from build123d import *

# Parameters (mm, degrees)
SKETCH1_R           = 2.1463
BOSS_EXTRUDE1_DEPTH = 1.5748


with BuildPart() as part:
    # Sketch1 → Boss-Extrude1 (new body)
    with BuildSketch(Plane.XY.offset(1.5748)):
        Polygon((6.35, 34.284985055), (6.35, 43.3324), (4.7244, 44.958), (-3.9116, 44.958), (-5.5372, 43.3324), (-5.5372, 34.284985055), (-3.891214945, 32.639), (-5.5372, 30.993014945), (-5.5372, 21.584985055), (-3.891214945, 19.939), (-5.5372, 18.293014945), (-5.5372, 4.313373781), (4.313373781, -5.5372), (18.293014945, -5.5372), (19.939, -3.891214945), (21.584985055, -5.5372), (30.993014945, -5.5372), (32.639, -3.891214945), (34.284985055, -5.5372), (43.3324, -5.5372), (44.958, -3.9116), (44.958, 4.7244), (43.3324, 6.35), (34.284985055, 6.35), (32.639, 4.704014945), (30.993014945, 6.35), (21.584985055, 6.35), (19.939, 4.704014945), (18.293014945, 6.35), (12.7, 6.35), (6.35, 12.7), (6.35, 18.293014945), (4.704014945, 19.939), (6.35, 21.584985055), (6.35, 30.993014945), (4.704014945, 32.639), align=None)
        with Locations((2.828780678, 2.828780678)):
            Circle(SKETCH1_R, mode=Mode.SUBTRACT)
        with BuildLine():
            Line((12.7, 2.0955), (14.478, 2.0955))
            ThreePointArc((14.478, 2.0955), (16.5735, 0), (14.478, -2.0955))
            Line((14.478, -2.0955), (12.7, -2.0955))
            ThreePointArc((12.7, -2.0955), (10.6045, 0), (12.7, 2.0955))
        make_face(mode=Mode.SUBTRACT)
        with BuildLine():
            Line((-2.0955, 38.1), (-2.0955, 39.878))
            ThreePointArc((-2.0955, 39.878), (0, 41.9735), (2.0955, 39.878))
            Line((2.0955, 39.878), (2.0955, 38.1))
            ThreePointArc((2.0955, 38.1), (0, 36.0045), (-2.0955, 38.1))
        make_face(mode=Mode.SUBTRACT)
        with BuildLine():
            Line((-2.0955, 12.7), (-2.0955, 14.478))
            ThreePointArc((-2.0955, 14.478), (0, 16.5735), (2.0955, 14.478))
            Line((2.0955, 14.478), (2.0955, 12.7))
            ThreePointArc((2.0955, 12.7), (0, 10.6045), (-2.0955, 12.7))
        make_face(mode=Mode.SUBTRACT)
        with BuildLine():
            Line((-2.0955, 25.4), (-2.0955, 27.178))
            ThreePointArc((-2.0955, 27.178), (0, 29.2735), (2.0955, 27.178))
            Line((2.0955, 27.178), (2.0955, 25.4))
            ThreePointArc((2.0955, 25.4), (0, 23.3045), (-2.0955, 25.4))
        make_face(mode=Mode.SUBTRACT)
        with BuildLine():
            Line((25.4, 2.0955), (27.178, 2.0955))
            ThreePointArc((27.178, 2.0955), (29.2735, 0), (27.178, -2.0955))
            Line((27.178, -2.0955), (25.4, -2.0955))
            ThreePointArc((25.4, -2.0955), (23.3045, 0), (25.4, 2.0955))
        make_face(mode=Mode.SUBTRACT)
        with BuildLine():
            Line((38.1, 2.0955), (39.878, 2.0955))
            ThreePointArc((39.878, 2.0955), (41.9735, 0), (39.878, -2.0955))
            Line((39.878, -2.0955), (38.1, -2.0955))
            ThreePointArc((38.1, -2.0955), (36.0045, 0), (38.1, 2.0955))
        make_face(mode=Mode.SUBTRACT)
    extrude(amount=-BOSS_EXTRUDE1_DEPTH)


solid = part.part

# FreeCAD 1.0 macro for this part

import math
import FreeCAD as App
import Part
import Sketcher
Q = App.Units.Quantity

doc = App.newDocument("Part")
params = doc.addObject("Spreadsheet::Sheet", "Params")
for row, (alias, value) in enumerate([
    ("sketch1_diameter", "0.169 in"),
    ("sketch1_width", "0.34 in"),
    ("sketch1_width2", "0.07 in"),
    ("pad1_length", "0.062 in"),
], start=1):
    params.set(f"A{row}", alias)
    params.set(f"B{row}", "=" + value)
    params.setAlias(f"B{row}", alias)

body = doc.addObject("PartDesign::Body", "Body")

# Sketch on XY plane
sketch1 = body.newObject("Sketcher::SketchObject", "Sketch")
sketch1.AttachmentSupport = (doc.getObject("XY_Plane"), [""])
sketch1.MapMode = "FlatFace"
sketch1.AttachmentOffset = App.Placement(App.Vector(0, 0, 0.062 * 25.4), App.Rotation())
sketch1.addGeometry([
    Part.LineSegment(App.Vector(6.3, 34.3, 0), App.Vector(6.3, 43.3, 0)),  # 0
    Part.LineSegment(App.Vector(6.3, 43.3, 0), App.Vector(4.7, 45, 0)),  # 1
    Part.LineSegment(App.Vector(4.7, 45, 0), App.Vector(-3.9, 45, 0)),  # 2
    Part.LineSegment(App.Vector(-3.9, 45, 0), App.Vector(-5.5, 43.3, 0)),  # 3
    Part.LineSegment(App.Vector(-5.5, 43.3, 0), App.Vector(-5.5, 34.3, 0)),  # 4
    Part.LineSegment(App.Vector(-5.5, 34.3, 0), App.Vector(-3.9, 32.6, 0)),  # 5
    Part.LineSegment(App.Vector(-3.9, 32.6, 0), App.Vector(-5.5, 31, 0)),  # 6
    Part.LineSegment(App.Vector(-5.5, 31, 0), App.Vector(-5.5, 21.6, 0)),  # 7
    Part.LineSegment(App.Vector(-5.5, 21.6, 0), App.Vector(-3.9, 19.9, 0)),  # 8
    Part.LineSegment(App.Vector(-3.9, 19.9, 0), App.Vector(-5.5, 18.3, 0)),  # 9
    Part.LineSegment(App.Vector(-5.5, 18.3, 0), App.Vector(-5.5, 4.3, 0)),  # 10
    Part.LineSegment(App.Vector(-5.5, 4.3, 0), App.Vector(4.3, -5.5, 0)),  # 11
    Part.LineSegment(App.Vector(4.3, -5.5, 0), App.Vector(18.3, -5.5, 0)),  # 12
    Part.LineSegment(App.Vector(18.3, -5.5, 0), App.Vector(19.9, -3.9, 0)),  # 13
    Part.LineSegment(App.Vector(19.9, -3.9, 0), App.Vector(21.6, -5.5, 0)),  # 14
    Part.LineSegment(App.Vector(21.6, -5.5, 0), App.Vector(31, -5.5, 0)),  # 15
    Part.LineSegment(App.Vector(31, -5.5, 0), App.Vector(32.6, -3.9, 0)),  # 16
    Part.LineSegment(App.Vector(32.6, -3.9, 0), App.Vector(34.3, -5.5, 0)),  # 17
    Part.LineSegment(App.Vector(34.3, -5.5, 0), App.Vector(43.3, -5.5, 0)),  # 18
    Part.LineSegment(App.Vector(43.3, -5.5, 0), App.Vector(45, -3.9, 0)),  # 19
    Part.LineSegment(App.Vector(45, -3.9, 0), App.Vector(45, 4.7, 0)),  # 20
    Part.LineSegment(App.Vector(45, 4.7, 0), App.Vector(43.3, 6.3, 0)),  # 21
    Part.LineSegment(App.Vector(43.3, 6.3, 0), App.Vector(34.3, 6.3, 0)),  # 22
    Part.LineSegment(App.Vector(34.3, 6.3, 0), App.Vector(32.6, 4.7, 0)),  # 23
    Part.LineSegment(App.Vector(32.6, 4.7, 0), App.Vector(31, 6.3, 0)),  # 24
    Part.LineSegment(App.Vector(31, 6.3, 0), App.Vector(21.6, 6.3, 0)),  # 25
    Part.LineSegment(App.Vector(21.6, 6.3, 0), App.Vector(19.9, 4.7, 0)),  # 26
    Part.LineSegment(App.Vector(19.9, 4.7, 0), App.Vector(18.3, 6.3, 0)),  # 27
    Part.LineSegment(App.Vector(18.3, 6.3, 0), App.Vector(12.7, 6.3, 0)),  # 28
    Part.LineSegment(App.Vector(12.7, 6.3, 0), App.Vector(6.3, 12.7, 0)),  # 29
    Part.LineSegment(App.Vector(6.3, 12.7, 0), App.Vector(6.3, 18.3, 0)),  # 30
    Part.LineSegment(App.Vector(6.3, 18.3, 0), App.Vector(4.7, 19.9, 0)),  # 31
    Part.LineSegment(App.Vector(4.7, 19.9, 0), App.Vector(6.3, 21.6, 0)),  # 32
    Part.LineSegment(App.Vector(6.3, 21.6, 0), App.Vector(6.3, 31, 0)),  # 33
    Part.LineSegment(App.Vector(6.3, 31, 0), App.Vector(4.7, 32.6, 0)),  # 34
    Part.LineSegment(App.Vector(4.7, 32.6, 0), App.Vector(6.3, 34.3, 0)),  # 35
    Part.Circle(App.Vector(2.8, 2.8, 0), App.Vector(0, 0, 1), 2.1),  # 36
    Part.ArcOfCircle(Part.Circle(App.Vector(12.7, 0, 0), App.Vector(0, 0, 1), 2.1), math.radians(90), math.radians(270)),  # 37
    Part.LineSegment(App.Vector(12.7, 2.1, 0), App.Vector(14.5, 2.1, 0)),  # 38
    Part.ArcOfCircle(Part.Circle(App.Vector(14.5, 0, 0), App.Vector(0, 0, 1), 2.1), math.radians(-90), math.radians(90)),  # 39
    Part.LineSegment(App.Vector(14.5, -2.1, 0), App.Vector(12.7, -2.1, 0)),  # 40
    Part.ArcOfCircle(Part.Circle(App.Vector(0, 12.7, 0), App.Vector(0, 0, 1), 2.1), math.radians(180), math.radians(360)),  # 41
    Part.LineSegment(App.Vector(-2.1, 12.7, 0), App.Vector(-2.1, 14.5, 0)),  # 42
    Part.ArcOfCircle(Part.Circle(App.Vector(0, 14.5, 0), App.Vector(0, 0, 1), 2.1), math.radians(0), math.radians(180)),  # 43
    Part.LineSegment(App.Vector(2.1, 14.5, 0), App.Vector(2.1, 12.7, 0)),  # 44
    Part.ArcOfCircle(Part.Circle(App.Vector(25.4, 0, 0), App.Vector(0, 0, 1), 2.1), math.radians(90), math.radians(270)),  # 45
    Part.LineSegment(App.Vector(25.4, 2.1, 0), App.Vector(27.2, 2.1, 0)),  # 46
    Part.ArcOfCircle(Part.Circle(App.Vector(27.2, 0, 0), App.Vector(0, 0, 1), 2.1), math.radians(-90), math.radians(90)),  # 47
    Part.LineSegment(App.Vector(27.2, -2.1, 0), App.Vector(25.4, -2.1, 0)),  # 48
    Part.ArcOfCircle(Part.Circle(App.Vector(38.1, 0, 0), App.Vector(0, 0, 1), 2.1), math.radians(90), math.radians(270)),  # 49
    Part.LineSegment(App.Vector(38.1, 2.1, 0), App.Vector(39.9, 2.1, 0)),  # 50
    Part.ArcOfCircle(Part.Circle(App.Vector(39.9, 0, 0), App.Vector(0, 0, 1), 2.1), math.radians(-90), math.radians(90)),  # 51
    Part.LineSegment(App.Vector(39.9, -2.1, 0), App.Vector(38.1, -2.1, 0)),  # 52
    Part.ArcOfCircle(Part.Circle(App.Vector(0, 25.4, 0), App.Vector(0, 0, 1), 2.1), math.radians(180), math.radians(360)),  # 53
    Part.LineSegment(App.Vector(-2.1, 25.4, 0), App.Vector(-2.1, 27.2, 0)),  # 54
    Part.ArcOfCircle(Part.Circle(App.Vector(0, 27.2, 0), App.Vector(0, 0, 1), 2.1), math.radians(0), math.radians(180)),  # 55
    Part.LineSegment(App.Vector(2.1, 27.2, 0), App.Vector(2.1, 25.4, 0)),  # 56
    Part.ArcOfCircle(Part.Circle(App.Vector(0, 38.1, 0), App.Vector(0, 0, 1), 2.1), math.radians(180), math.radians(360)),  # 57
    Part.LineSegment(App.Vector(-2.1, 38.1, 0), App.Vector(-2.1, 39.9, 0)),  # 58
    Part.ArcOfCircle(Part.Circle(App.Vector(0, 39.9, 0), App.Vector(0, 0, 1), 2.1), math.radians(0), math.radians(180)),  # 59
    Part.LineSegment(App.Vector(2.1, 39.9, 0), App.Vector(2.1, 38.1, 0)),  # 60
], False)
sketch1.addConstraint([
    Sketcher.Constraint("Coincident", 0, 2, 1, 1),
    Sketcher.Constraint("Coincident", 1, 2, 2, 1),
    Sketcher.Constraint("Coincident", 2, 2, 3, 1),
    Sketcher.Constraint("Coincident", 3, 2, 4, 1),
    Sketcher.Constraint("Coincident", 4, 2, 5, 1),
    Sketcher.Constraint("Coincident", 5, 2, 6, 1),
    Sketcher.Constraint("Coincident", 6, 2, 7, 1),
    Sketcher.Constraint("Coincident", 7, 2, 8, 1),
    Sketcher.Constraint("Coincident", 8, 2, 9, 1),
    Sketcher.Constraint("Coincident", 9, 2, 10, 1),
    Sketcher.Constraint("Coincident", 10, 2, 11, 1),
    Sketcher.Constraint("Coincident", 11, 2, 12, 1),
    Sketcher.Constraint("Coincident", 12, 2, 13, 1),
    Sketcher.Constraint("Coincident", 13, 2, 14, 1),
    Sketcher.Constraint("Coincident", 14, 2, 15, 1),
    Sketcher.Constraint("Coincident", 15, 2, 16, 1),
    Sketcher.Constraint("Coincident", 16, 2, 17, 1),
    Sketcher.Constraint("Coincident", 17, 2, 18, 1),
    Sketcher.Constraint("Coincident", 18, 2, 19, 1),
    Sketcher.Constraint("Coincident", 19, 2, 20, 1),
    Sketcher.Constraint("Coincident", 20, 2, 21, 1),
    Sketcher.Constraint("Coincident", 21, 2, 22, 1),
    Sketcher.Constraint("Coincident", 22, 2, 23, 1),
    Sketcher.Constraint("Coincident", 23, 2, 24, 1),
    Sketcher.Constraint("Coincident", 24, 2, 25, 1),
    Sketcher.Constraint("Coincident", 25, 2, 26, 1),
    Sketcher.Constraint("Coincident", 26, 2, 27, 1),
    Sketcher.Constraint("Coincident", 27, 2, 28, 1),
    Sketcher.Constraint("Coincident", 28, 2, 29, 1),
    Sketcher.Constraint("Coincident", 29, 2, 30, 1),
    Sketcher.Constraint("Coincident", 30, 2, 31, 1),
    Sketcher.Constraint("Coincident", 31, 2, 32, 1),
    Sketcher.Constraint("Coincident", 32, 2, 33, 1),
    Sketcher.Constraint("Coincident", 33, 2, 34, 1),
    Sketcher.Constraint("Coincident", 34, 2, 35, 1),
    Sketcher.Constraint("Coincident", 35, 2, 0, 1),
    Sketcher.Constraint("Tangent", 37, 1, 38, 1),
    Sketcher.Constraint("Tangent", 38, 2, 39, 2),
    Sketcher.Constraint("Tangent", 39, 1, 40, 1),
    Sketcher.Constraint("Tangent", 40, 2, 37, 2),
    Sketcher.Constraint("Tangent", 41, 1, 42, 1),
    Sketcher.Constraint("Tangent", 42, 2, 43, 2),
    Sketcher.Constraint("Tangent", 43, 1, 44, 1),
    Sketcher.Constraint("Tangent", 44, 2, 41, 2),
    Sketcher.Constraint("Tangent", 45, 1, 46, 1),
    Sketcher.Constraint("Tangent", 46, 2, 47, 2),
    Sketcher.Constraint("Tangent", 47, 1, 48, 1),
    Sketcher.Constraint("Tangent", 48, 2, 45, 2),
    Sketcher.Constraint("Tangent", 49, 1, 50, 1),
    Sketcher.Constraint("Tangent", 50, 2, 51, 2),
    Sketcher.Constraint("Tangent", 51, 1, 52, 1),
    Sketcher.Constraint("Tangent", 52, 2, 49, 2),
    Sketcher.Constraint("Tangent", 53, 1, 54, 1),
    Sketcher.Constraint("Tangent", 54, 2, 55, 2),
    Sketcher.Constraint("Tangent", 55, 1, 56, 1),
    Sketcher.Constraint("Tangent", 56, 2, 53, 2),
    Sketcher.Constraint("Tangent", 57, 1, 58, 1),
    Sketcher.Constraint("Tangent", 58, 2, 59, 2),
    Sketcher.Constraint("Tangent", 59, 1, 60, 1),
    Sketcher.Constraint("Tangent", 60, 2, 57, 2),
    Sketcher.Constraint("Vertical", 0),
    Sketcher.Constraint("Horizontal", 2),
    Sketcher.Constraint("Vertical", 4),
    Sketcher.Constraint("Vertical", 7),
    Sketcher.Constraint("Vertical", 10),
    Sketcher.Constraint("Horizontal", 12),
    Sketcher.Constraint("Horizontal", 15),
    Sketcher.Constraint("Horizontal", 18),
    Sketcher.Constraint("Vertical", 20),
    Sketcher.Constraint("Horizontal", 22),
    Sketcher.Constraint("Horizontal", 25),
    Sketcher.Constraint("Horizontal", 28),
    Sketcher.Constraint("Vertical", 30),
    Sketcher.Constraint("Vertical", 33),
    Sketcher.Constraint("Horizontal", 38),
    Sketcher.Constraint("Horizontal", 40),
    Sketcher.Constraint("Vertical", 42),
    Sketcher.Constraint("Vertical", 44),
    Sketcher.Constraint("Horizontal", 46),
    Sketcher.Constraint("Horizontal", 48),
    Sketcher.Constraint("Horizontal", 50),
    Sketcher.Constraint("Horizontal", 52),
    Sketcher.Constraint("Vertical", 54),
    Sketcher.Constraint("Vertical", 56),
    Sketcher.Constraint("Vertical", 58),
    Sketcher.Constraint("Vertical", 60),
    Sketcher.Constraint("Equal", 39, 41),
    Sketcher.Constraint("Equal", 43, 45),
    Sketcher.Constraint("Equal", 47, 49),
    Sketcher.Constraint("Equal", 51, 53),
    Sketcher.Constraint("Equal", 55, 57),
    Sketcher.Constraint("PointOnObject", 37, 3, -1),
    Sketcher.Constraint("PointOnObject", 41, 3, -2),
    Sketcher.Constraint("PointOnObject", 45, 3, -1),
    Sketcher.Constraint("PointOnObject", 49, 3, -1),
    Sketcher.Constraint("PointOnObject", 53, 3, -2),
    Sketcher.Constraint("PointOnObject", 57, 3, -2),
    Sketcher.Constraint("Perpendicular", 1, 3),
    Sketcher.Constraint("Perpendicular", 3, 5),
    Sketcher.Constraint("Perpendicular", 5, 6),
    Sketcher.Constraint("Perpendicular", 6, 8),
    Sketcher.Constraint("Perpendicular", 8, 9),
    Sketcher.Constraint("Perpendicular", 9, 11),
    Sketcher.Constraint("Perpendicular", 11, 13),
    Sketcher.Constraint("Perpendicular", 13, 14),
    Sketcher.Constraint("Perpendicular", 14, 16),
    Sketcher.Constraint("Perpendicular", 16, 17),
    Sketcher.Constraint("Perpendicular", 17, 19),
    Sketcher.Constraint("Perpendicular", 19, 21),
    Sketcher.Constraint("Perpendicular", 21, 23),
    Sketcher.Constraint("Perpendicular", 23, 24),
    Sketcher.Constraint("Perpendicular", 24, 26),
    Sketcher.Constraint("Perpendicular", 26, 27),
    Sketcher.Constraint("Parallel", 27, 29),
    Sketcher.Constraint("Parallel", 29, 31),
    Sketcher.Constraint("Perpendicular", 31, 32),
    Sketcher.Constraint("Perpendicular", 32, 34),
    Sketcher.Constraint("Perpendicular", 34, 35),
    Sketcher.Constraint("Horizontal", 0, 2, 3, 2),
    Sketcher.Constraint("Horizontal", 12, 2, 14, 2),
    Sketcher.Constraint("Horizontal", 13, 2, 16, 2),
    Sketcher.Constraint("Horizontal", 15, 2, 17, 2),
    Sketcher.Constraint("Horizontal", 22, 2, 24, 2),
    Sketcher.Constraint("Horizontal", 23, 2, 26, 2),
    Sketcher.Constraint("Horizontal", 25, 2, 27, 2),
    Sketcher.Constraint("Horizontal", 41, 3, 29, 2),
    Sketcher.Constraint("Horizontal", 9, 2, 30, 2),
    Sketcher.Constraint("Horizontal", 8, 2, 31, 2),
    Sketcher.Constraint("Horizontal", 7, 2, 32, 2),
    Sketcher.Constraint("Horizontal", 6, 2, 33, 2),
    Sketcher.Constraint("Horizontal", 5, 2, 34, 2),
    Sketcher.Constraint("Horizontal", 4, 2, 35, 2),
    Sketcher.Constraint("Vertical", 4, 2, 6, 2),
    Sketcher.Constraint("Vertical", 5, 2, 8, 2),
    Sketcher.Constraint("Vertical", 7, 2, 9, 2),
    Sketcher.Constraint("Vertical", 18, 2, 21, 2),
    Sketcher.Constraint("Vertical", 17, 2, 22, 2),
    Sketcher.Constraint("Vertical", 16, 2, 23, 2),
    Sketcher.Constraint("Vertical", 15, 2, 24, 2),
    Sketcher.Constraint("Vertical", 14, 2, 25, 2),
    Sketcher.Constraint("Vertical", 37, 3, 28, 2),
    Sketcher.Constraint("Equal", 40, 46),
    Sketcher.Constraint("Equal", 48, 50),
    Sketcher.Constraint("Equal", 22, 0),
    Sketcher.Constraint("Equal", 25, 7),
    Sketcher.Constraint("Equal", 12, 10),
    Sketcher.Constraint("Equal", 2, 20),
    Sketcher.Constraint("Equal", 28, 30),
    Sketcher.Constraint("Equal", 52, 42),
    Sketcher.Constraint("Equal", 44, 54),
    Sketcher.Constraint("Equal", 56, 58),
    Sketcher.Constraint("Equal", 9, 13),
    Sketcher.Constraint("Diameter", 36, Q("0.169 in")),
    Sketcher.Constraint("DistanceX", -1, 1, 45, 3, Q("1 in")),
    Sketcher.Constraint("DistanceY", -1, 1, 53, 3, Q("1 in")),
    Sketcher.Constraint("DistanceX", 2, 2, 2, 1, Q("0.34 in")),
    Sketcher.Constraint("DistanceX", 38, 1, 38, 2, Q("0.07 in")),
    Sketcher.Constraint("DistanceX", -1, 1, 37, 3, Q("0.5 in")),
    Sketcher.Constraint("DistanceY", -1, 1, 41, 3, Q("0.5 in")),
    Sketcher.Constraint("DistanceX", -1, 1, 49, 3, Q("1.5 in")),
    Sketcher.Constraint("DistanceY", -1, 1, 57, 3, Q("1.5 in")),
    Sketcher.Constraint("Radius", 37, Q("0.0825 in")),
    Sketcher.Constraint("DistanceX", -1, 1, 0, 2, Q("0.25 in")),
    Sketcher.Constraint("DistanceY", -1, 1, 1, 2, Q("1.77 in")),
    Sketcher.Constraint("DistanceY", -1, 1, 0, 2, Q("1.706 in")),
    Sketcher.Constraint("DistanceY", -1, 1, 5, 2, Q("1.285 in")),
    Sketcher.Constraint("DistanceY", -1, 1, 8, 2, Q("0.785 in")),
    Sketcher.Constraint("DistanceX", 12, 1, 12, 2, 13.979641),
    Sketcher.Constraint("DistanceX", 15, 1, 15, 2, 9.40803),
    Sketcher.Constraint("DistanceX", -1, 1, 36, 3, 2.828781),
    Sketcher.Constraint("DistanceY", -1, 1, 36, 3, 2.828781),
])
sketch1.setExpression("Constraints[152]", "Params.sketch1_diameter")
sketch1.setExpression("Constraints[155]", "Params.sketch1_width")
sketch1.setExpression("Constraints[156]", "Params.sketch1_width2")
pad1 = body.newObject("PartDesign::Pad", "Pad")
pad1.Profile = sketch1
pad1.setExpression("Length", "Params.pad1_length")
pad1.Reversed = True

doc.recompute()
